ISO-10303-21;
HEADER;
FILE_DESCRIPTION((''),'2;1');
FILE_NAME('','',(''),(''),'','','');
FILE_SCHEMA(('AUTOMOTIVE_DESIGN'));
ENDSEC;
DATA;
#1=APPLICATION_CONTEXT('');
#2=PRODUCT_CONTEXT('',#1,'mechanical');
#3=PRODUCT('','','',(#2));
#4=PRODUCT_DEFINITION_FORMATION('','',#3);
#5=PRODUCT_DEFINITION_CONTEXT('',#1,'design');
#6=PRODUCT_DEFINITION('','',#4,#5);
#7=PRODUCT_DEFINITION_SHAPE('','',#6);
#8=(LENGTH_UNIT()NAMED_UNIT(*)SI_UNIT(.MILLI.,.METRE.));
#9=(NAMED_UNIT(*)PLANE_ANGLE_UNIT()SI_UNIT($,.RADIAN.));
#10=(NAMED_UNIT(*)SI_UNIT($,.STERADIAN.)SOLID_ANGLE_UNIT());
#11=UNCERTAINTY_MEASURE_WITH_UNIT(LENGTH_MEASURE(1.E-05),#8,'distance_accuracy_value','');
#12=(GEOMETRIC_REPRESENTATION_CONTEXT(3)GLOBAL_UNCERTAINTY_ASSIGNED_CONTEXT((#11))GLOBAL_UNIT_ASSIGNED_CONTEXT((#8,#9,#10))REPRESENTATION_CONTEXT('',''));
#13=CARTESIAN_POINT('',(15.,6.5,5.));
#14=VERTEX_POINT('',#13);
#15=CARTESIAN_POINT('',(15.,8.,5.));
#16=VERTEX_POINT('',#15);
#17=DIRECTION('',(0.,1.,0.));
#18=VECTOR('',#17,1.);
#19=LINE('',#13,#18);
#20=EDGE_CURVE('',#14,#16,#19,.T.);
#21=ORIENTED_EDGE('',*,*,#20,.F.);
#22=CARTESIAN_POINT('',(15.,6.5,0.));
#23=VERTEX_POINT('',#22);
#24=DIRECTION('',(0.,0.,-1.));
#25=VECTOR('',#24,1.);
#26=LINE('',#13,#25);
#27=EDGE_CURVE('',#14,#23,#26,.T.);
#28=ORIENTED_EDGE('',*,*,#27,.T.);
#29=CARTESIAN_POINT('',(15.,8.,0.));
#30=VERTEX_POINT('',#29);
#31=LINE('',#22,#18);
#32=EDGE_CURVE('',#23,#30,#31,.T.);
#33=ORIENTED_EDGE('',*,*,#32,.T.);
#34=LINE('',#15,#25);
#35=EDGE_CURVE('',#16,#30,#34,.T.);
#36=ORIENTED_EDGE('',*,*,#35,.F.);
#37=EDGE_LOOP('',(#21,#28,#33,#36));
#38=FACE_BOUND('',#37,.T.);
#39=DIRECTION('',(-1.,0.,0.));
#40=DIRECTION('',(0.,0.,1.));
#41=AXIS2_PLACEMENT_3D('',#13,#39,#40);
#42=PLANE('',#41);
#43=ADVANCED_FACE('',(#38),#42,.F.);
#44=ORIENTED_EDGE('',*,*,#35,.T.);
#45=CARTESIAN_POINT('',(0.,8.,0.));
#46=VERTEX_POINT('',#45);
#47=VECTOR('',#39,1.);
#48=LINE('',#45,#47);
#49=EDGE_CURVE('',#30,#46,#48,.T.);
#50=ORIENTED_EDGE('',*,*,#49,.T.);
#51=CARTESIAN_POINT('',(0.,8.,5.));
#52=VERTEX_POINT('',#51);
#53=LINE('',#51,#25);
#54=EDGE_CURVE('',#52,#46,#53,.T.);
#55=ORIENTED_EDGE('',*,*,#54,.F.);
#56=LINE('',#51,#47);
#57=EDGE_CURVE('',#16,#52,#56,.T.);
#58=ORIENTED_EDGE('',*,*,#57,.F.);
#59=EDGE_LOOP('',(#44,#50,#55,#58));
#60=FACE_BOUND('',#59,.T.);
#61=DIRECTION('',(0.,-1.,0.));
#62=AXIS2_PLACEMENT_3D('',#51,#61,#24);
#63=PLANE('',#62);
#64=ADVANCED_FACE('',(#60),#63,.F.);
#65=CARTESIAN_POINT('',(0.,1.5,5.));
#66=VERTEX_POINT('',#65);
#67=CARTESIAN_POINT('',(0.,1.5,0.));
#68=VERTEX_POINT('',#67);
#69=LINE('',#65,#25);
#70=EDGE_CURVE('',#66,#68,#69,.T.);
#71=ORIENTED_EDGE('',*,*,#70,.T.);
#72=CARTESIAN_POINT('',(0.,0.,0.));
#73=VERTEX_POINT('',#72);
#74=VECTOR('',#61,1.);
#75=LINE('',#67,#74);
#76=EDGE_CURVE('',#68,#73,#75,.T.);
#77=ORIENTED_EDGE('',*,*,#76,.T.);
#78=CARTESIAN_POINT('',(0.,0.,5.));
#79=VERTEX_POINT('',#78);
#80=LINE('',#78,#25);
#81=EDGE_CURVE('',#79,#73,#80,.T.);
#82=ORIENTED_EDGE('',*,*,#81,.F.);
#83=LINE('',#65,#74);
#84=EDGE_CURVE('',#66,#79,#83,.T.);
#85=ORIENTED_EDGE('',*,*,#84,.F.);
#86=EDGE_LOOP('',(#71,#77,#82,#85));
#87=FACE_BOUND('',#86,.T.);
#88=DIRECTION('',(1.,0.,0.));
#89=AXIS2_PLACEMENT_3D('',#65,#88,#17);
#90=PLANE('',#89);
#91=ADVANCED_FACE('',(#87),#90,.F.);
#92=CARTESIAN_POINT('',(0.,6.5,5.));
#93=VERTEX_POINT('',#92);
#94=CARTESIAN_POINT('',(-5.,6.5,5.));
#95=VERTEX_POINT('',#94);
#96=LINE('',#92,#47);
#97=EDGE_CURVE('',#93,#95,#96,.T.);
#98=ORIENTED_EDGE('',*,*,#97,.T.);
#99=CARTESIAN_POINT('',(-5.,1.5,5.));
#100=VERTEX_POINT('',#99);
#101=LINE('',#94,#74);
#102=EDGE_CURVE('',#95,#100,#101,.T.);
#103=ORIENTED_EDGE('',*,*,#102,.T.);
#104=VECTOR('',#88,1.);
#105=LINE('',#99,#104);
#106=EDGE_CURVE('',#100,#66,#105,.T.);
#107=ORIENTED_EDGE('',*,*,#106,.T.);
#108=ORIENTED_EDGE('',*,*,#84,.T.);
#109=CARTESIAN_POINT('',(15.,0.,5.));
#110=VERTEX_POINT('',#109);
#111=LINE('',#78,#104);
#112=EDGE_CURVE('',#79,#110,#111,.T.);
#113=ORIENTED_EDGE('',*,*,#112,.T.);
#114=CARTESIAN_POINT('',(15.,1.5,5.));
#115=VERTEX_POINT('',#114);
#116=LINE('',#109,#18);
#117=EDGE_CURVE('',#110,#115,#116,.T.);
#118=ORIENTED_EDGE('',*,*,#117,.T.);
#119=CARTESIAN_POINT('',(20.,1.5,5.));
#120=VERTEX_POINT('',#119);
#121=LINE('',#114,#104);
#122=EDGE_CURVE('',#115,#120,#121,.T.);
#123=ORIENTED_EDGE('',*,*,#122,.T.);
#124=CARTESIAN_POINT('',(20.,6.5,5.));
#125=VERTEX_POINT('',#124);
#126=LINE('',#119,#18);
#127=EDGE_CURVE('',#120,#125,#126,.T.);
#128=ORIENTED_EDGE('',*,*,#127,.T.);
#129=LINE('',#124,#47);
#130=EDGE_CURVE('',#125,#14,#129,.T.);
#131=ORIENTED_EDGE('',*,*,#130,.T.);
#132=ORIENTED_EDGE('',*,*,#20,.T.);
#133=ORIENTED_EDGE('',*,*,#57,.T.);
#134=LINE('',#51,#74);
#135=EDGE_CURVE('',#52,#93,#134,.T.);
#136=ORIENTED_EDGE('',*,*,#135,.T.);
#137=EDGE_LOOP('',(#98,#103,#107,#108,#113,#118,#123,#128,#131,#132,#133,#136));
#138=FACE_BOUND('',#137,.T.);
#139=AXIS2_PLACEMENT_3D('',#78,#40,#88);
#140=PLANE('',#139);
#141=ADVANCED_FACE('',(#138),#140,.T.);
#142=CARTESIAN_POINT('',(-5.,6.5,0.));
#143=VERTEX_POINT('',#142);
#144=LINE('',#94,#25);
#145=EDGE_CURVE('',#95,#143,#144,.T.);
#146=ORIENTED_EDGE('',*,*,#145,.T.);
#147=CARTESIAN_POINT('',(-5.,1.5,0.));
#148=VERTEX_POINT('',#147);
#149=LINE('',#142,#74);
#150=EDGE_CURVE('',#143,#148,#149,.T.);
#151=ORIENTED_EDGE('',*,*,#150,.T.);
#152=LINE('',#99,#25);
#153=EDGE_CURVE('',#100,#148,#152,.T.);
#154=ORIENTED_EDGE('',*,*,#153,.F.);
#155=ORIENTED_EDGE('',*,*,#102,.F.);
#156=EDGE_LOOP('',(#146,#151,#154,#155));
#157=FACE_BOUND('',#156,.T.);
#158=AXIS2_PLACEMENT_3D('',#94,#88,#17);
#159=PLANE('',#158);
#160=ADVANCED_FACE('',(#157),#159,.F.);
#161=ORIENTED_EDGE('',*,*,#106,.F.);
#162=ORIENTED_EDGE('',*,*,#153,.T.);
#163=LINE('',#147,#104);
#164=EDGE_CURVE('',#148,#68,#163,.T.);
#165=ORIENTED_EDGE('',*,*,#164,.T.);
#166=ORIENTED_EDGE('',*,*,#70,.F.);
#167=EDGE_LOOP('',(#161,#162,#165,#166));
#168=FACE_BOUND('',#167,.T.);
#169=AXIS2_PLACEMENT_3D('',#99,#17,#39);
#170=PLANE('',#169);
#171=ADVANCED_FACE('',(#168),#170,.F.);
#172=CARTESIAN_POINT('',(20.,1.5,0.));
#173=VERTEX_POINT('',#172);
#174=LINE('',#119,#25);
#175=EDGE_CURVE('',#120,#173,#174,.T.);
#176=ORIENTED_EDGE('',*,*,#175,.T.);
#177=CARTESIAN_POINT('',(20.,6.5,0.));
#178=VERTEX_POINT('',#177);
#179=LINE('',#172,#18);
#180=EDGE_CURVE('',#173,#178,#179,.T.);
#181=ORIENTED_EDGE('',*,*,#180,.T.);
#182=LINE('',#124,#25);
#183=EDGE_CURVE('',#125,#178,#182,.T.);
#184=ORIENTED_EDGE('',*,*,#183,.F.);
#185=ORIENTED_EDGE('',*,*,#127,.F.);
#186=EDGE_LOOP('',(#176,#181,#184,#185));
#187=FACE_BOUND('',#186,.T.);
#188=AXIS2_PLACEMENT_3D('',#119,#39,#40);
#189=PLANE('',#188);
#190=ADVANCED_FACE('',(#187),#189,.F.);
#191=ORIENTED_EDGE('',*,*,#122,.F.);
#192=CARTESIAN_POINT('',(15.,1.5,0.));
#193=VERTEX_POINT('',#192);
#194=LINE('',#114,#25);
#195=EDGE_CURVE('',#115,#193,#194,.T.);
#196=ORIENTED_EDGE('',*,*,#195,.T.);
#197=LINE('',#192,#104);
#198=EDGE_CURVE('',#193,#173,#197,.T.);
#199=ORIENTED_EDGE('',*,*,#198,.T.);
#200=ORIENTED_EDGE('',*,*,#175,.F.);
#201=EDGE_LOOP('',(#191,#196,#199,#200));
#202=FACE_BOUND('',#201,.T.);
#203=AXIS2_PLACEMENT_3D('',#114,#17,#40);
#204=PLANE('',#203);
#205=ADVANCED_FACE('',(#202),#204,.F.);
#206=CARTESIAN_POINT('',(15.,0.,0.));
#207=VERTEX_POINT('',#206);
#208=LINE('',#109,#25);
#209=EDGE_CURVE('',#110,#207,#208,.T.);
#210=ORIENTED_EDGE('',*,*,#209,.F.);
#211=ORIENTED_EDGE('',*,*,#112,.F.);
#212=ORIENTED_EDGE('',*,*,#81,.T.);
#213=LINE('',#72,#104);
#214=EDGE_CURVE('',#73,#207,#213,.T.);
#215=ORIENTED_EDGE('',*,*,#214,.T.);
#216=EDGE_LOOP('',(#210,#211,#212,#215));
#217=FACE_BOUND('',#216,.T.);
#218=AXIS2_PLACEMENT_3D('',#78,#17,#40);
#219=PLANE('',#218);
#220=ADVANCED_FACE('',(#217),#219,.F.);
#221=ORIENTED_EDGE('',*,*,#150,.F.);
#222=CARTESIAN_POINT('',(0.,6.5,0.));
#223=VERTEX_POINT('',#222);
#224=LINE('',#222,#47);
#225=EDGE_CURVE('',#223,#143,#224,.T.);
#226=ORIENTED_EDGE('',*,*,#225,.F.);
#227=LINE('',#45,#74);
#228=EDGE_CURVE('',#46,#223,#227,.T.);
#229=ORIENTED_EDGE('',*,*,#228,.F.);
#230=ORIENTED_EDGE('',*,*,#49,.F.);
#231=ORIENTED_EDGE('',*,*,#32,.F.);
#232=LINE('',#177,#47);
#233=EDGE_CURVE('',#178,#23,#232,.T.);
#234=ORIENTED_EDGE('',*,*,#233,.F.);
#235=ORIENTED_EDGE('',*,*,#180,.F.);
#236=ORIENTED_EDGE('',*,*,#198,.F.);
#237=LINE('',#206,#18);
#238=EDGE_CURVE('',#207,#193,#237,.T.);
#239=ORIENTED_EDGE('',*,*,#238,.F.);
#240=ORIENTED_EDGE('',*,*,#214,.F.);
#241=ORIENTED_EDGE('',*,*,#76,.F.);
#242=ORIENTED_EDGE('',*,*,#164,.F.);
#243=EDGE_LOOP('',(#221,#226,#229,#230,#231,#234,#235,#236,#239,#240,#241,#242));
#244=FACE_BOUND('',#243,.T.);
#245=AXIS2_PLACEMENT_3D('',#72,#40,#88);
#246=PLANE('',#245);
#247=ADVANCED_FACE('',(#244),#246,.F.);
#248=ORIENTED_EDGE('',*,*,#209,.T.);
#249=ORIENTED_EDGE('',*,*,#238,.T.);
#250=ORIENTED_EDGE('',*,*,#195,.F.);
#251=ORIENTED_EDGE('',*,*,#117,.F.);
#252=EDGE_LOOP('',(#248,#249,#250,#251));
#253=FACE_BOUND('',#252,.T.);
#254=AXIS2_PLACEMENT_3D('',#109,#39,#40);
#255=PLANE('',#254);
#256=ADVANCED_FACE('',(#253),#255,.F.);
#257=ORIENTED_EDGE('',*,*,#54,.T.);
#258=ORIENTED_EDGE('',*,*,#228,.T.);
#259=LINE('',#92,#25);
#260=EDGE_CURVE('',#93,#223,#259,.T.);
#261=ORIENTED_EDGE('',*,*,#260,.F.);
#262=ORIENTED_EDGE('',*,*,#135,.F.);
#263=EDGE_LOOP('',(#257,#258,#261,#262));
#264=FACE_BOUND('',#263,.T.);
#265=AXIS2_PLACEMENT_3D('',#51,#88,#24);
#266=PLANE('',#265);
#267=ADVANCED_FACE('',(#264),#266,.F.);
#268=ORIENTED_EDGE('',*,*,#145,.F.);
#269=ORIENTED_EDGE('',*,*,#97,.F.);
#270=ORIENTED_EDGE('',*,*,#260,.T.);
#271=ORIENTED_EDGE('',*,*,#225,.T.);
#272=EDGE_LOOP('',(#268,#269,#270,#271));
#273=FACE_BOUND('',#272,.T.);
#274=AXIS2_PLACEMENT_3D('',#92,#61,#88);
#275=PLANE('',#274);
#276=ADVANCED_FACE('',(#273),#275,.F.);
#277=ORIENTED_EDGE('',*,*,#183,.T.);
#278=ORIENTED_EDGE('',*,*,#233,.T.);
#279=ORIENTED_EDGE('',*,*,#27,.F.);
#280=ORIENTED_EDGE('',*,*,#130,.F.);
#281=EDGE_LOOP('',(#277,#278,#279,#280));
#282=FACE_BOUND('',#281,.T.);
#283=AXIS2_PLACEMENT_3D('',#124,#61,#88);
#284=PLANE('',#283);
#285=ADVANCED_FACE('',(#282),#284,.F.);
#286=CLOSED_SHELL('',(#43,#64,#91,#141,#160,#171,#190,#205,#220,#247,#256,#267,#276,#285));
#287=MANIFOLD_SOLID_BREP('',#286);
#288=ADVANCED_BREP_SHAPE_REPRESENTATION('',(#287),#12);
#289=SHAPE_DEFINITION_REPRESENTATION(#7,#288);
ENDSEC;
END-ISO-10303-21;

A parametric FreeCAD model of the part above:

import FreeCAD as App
import Part
import Sketcher
from FreeCAD import Vector


def add_polygon(sketch, points):
    """Adds a closed chain of lines whose ends are joined by coincident constraints."""
    first, n = sketch.GeometryCount, len(points)
    for a, b in zip(points, points[1:] + points[:1]):
        sketch.addGeometry(Part.LineSegment(App.Vector(*a, 0), App.Vector(*b, 0)), False)
    for i in range(n):
        sketch.addConstraint(Sketcher.Constraint("Coincident", first + i, 2, first + (i + 1) % n, 1))

doc = App.newDocument("Part")
body = doc.addObject("PartDesign::Body", "Body")

# Sketch on XY plane
sketch1 = body.newObject("Sketcher::SketchObject", "Sketch")
sketch1.AttachmentSupport = (doc.getObject("XY_Plane"), [""])
sketch1.MapMode = "FlatFace"
add_polygon(sketch1, [(0, 8), (0, 6.5), (-5, 6.5), (-5, 1.5), (0, 1.5), (0, 0), (15, 0), (15, 1.5), (20, 1.5), (20, 6.5), (15, 6.5), (15, 8)])  # lines 0-11
sketch1.addConstraint([
    Sketcher.Constraint("Vertical", 0),
    Sketcher.Constraint("Horizontal", 1),
    Sketcher.Constraint("Vertical", 2),
    Sketcher.Constraint("Horizontal", 3),
    Sketcher.Constraint("Vertical", 4),
    Sketcher.Constraint("Horizontal", 5),
    Sketcher.Constraint("Vertical", 6),
    Sketcher.Constraint("Horizontal", 7),
    Sketcher.Constraint("Vertical", 8),
    Sketcher.Constraint("Horizontal", 9),
    Sketcher.Constraint("Vertical", 10),
    Sketcher.Constraint("Horizontal", 11),
    Sketcher.Constraint("Coincident", 4, 2, -1, 1),
    Sketcher.Constraint("PointOnObject", 0, 2, -2),
    Sketcher.Constraint("Horizontal", 3, 2, 6, 2),
    Sketcher.Constraint("Horizontal", 1, 2, 8, 2),
    Sketcher.Constraint("Vertical", 6, 2, 9, 2),
    Sketcher.Constraint("Equal", 3, 7),
    Sketcher.Constraint("Equal", 9, 2),
    Sketcher.Constraint("Equal", 0, 4),
    Sketcher.Constraint("DistanceX", 1, 2, 1, 1, 5.0),
    Sketcher.Constraint("DistanceX", 5, 1, 5, 2, 15.0),
    Sketcher.Constraint("DistanceY", 0, 2, 0, 1, 1.5),
])
pad1 = body.newObject("PartDesign::Pad", "Pad")
pad1.Profile = sketch1
pad1.Length = 5

doc.recompute()
